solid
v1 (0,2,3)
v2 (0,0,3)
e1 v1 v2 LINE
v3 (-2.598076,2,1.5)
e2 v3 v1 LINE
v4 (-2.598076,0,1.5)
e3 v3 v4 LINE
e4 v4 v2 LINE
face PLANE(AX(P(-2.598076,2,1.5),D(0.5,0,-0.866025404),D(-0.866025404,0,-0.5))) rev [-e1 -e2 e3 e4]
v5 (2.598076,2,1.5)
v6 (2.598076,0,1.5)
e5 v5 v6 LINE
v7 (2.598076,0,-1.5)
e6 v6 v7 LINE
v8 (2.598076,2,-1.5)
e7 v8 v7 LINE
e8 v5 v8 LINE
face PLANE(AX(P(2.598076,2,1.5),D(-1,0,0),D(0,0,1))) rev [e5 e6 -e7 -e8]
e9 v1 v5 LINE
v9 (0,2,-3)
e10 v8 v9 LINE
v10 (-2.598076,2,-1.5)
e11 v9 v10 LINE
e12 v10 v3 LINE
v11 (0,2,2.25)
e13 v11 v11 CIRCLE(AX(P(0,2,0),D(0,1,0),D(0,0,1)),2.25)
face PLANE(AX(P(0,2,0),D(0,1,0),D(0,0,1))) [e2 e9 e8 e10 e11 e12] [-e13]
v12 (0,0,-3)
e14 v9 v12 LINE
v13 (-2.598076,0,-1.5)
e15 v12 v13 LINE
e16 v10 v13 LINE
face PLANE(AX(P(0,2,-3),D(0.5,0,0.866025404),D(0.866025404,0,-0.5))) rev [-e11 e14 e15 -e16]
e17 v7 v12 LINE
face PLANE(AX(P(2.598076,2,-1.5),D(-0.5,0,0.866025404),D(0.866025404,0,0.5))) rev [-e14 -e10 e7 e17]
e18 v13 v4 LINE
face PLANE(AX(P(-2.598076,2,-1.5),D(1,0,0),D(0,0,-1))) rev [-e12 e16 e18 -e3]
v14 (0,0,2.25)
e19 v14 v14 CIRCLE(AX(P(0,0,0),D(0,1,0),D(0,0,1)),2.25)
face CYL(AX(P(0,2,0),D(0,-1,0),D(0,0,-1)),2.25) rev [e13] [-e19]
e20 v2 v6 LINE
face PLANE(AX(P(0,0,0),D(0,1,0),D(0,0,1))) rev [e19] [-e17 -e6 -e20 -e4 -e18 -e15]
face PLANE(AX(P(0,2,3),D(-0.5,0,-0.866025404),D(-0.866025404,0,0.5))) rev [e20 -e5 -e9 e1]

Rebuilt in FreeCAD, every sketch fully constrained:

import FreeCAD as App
import Part
import Sketcher
Q = App.Units.Quantity


def add_polygon(sketch, points):
    """Adds a closed chain of lines whose ends are joined by coincident constraints."""
    first, n = sketch.GeometryCount, len(points)
    for a, b in zip(points, points[1:] + points[:1]):
        sketch.addGeometry(Part.LineSegment(App.Vector(*a, 0), App.Vector(*b, 0)), False)
    for i in range(n):
        sketch.addConstraint(Sketcher.Constraint("Coincident", first + i, 2, first + (i + 1) % n, 1))

doc = App.newDocument("Part")
body = doc.addObject("PartDesign::Body", "Body")

# Sketch on XZ plane
sketch1 = body.newObject("Sketcher::SketchObject", "Sketch")
sketch1.AttachmentSupport = (doc.getObject("XZ_Plane"), [""])
sketch1.MapMode = "FlatFace"
add_polygon(sketch1, [(0, -3), (-2.6, -1.5), (-2.6, 1.5), (0, 3), (2.6, 1.5), (2.6, -1.5)])  # lines 0-5
sketch1.addGeometry(Part.Circle(App.Vector(0, 0, 0), App.Vector(0, 0, 1), 2.2), False)  # 6
sketch1.addConstraint([
    Sketcher.Constraint("Vertical", 1),
    Sketcher.Constraint("Vertical", 4),
    Sketcher.Constraint("Coincident", 6, 3, -1, 1),
    Sketcher.Constraint("Symmetric", 0, 2, 3, 2, -1, 1),
    Sketcher.Constraint("Symmetric", 2, 2, 5, 2, -1, 1),
    Sketcher.Constraint("PointOnObject", 2, 2, -2),
    Sketcher.Constraint("Parallel", 2, 5),
    Sketcher.Constraint("Horizontal", 1, 2, 3, 2),
    Sketcher.Constraint("Diameter", 6, 4.5),
    Sketcher.Constraint("DistanceY", 1, 1, 1, 2, 3.0),
    Sketcher.Constraint("Angle", 0, Q("150 deg")),
    Sketcher.Constraint("Distance", 0, 3.0),
])
pad1 = body.newObject("PartDesign::Pad", "Pad")
pad1.Profile = sketch1
pad1.Length = 2
pad1.Reversed = True

doc.recompute()
